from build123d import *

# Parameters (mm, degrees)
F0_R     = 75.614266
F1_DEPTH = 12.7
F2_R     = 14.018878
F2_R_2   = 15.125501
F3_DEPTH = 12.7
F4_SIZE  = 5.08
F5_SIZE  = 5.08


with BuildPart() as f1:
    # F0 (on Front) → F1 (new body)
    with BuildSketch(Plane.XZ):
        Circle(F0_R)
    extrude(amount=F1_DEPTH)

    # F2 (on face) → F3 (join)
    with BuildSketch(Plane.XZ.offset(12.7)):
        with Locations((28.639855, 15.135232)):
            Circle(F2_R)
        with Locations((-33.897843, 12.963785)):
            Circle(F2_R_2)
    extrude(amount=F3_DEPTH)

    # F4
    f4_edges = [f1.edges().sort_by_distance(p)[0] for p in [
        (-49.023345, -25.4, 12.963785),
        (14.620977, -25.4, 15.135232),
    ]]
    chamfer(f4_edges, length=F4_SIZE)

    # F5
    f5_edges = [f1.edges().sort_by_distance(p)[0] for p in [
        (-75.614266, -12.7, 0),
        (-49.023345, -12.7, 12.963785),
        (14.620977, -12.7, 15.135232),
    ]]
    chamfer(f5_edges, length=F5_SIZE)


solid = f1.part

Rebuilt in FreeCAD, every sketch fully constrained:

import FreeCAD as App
import Part
import Sketcher
Q = App.Units.Quantity


def edges_at(feature, points):
    """Names of the edges that pass closest to the given points."""
    edges = feature.Shape.Edges
    near = lambda p: min(range(len(edges)), key=lambda i: edges[i].distToShape(Part.Vertex(*p))[0])
    return sorted({f"Edge{near(p) + 1}" for p in points})

doc = App.newDocument("Part")
body = doc.addObject("PartDesign::Body", "Body")

sketch1 = body.newObject("Sketcher::SketchObject", "Sketch")
sketch1.AttachmentSupport = (doc.getObject("XZ_Plane"), [""])
sketch1.MapMode = "FlatFace"
sketch1.addGeometry(Part.Circle(App.Vector(0, 0, 0), App.Vector(0, 0, 1), 76), False)
sketch1.addConstraint([
    Sketcher.Constraint("Coincident", 0, 3, -1, 1),
    Sketcher.Constraint("Diameter", 0, 151.228532),
])
pad1 = body.newObject("PartDesign::Pad", "Pad")
pad1.Profile = sketch1
pad1.Length = Q("0.5 in")

sketch2 = body.newObject("Sketcher::SketchObject", "Sketch001")
sketch2.AttachmentSupport = (doc.getObject("XZ_Plane"), [""])
sketch2.MapMode = "FlatFace"
sketch2.AttachmentOffset = App.Placement(App.Vector(0, 0, 0.5 * 25.4), App.Rotation())
sketch2.addGeometry([
    Part.Circle(App.Vector(29, 15, 0), App.Vector(0, 0, 1), 14),
    Part.Circle(App.Vector(-34, 13, 0), App.Vector(0, 0, 1), 15),
], False)
sketch2.addConstraint([
    Sketcher.Constraint("Diameter", 1, 30.251002),
    Sketcher.Constraint("Diameter", 0, 28.037756),
    Sketcher.Constraint("DistanceX", 1, 3, 0, 3, 62.537698),
    Sketcher.Constraint("DistanceX", -1, 1, 0, 3, 28.639855),
    Sketcher.Constraint("DistanceY", -1, 1, 0, 3, 15.135232),
    Sketcher.Constraint("DistanceY", -1, 1, 1, 3, 12.963785),
])
pad2 = body.newObject("PartDesign::Pad", "Pad001")
pad2.Profile = sketch2
pad2.Length = Q("0.5 in")
doc.recompute()

chamfer = body.newObject("PartDesign::Chamfer", "Chamfer")
chamfer.Base = (pad2, edges_at(pad2, [(-49.023, -25.4, 12.964), (14.621, -25.4, 15.135)]))
chamfer.Size = Q("0.2 in")
doc.recompute()

chamfer2 = body.newObject("PartDesign::Chamfer", "Chamfer001")
chamfer2.Base = (chamfer, edges_at(chamfer, [(-75.614, -12.7, 0), (-49.023, -12.7, 12.964), (14.621, -12.7, 15.135)]))
chamfer2.Size = Q("0.2 in")

doc.recompute()
